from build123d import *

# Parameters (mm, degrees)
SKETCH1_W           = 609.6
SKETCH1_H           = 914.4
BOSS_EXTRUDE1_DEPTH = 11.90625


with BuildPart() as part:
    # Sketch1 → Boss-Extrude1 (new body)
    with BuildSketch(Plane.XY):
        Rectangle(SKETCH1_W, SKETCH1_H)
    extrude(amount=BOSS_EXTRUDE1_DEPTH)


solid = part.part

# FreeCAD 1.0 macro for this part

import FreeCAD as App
import Part
import Sketcher
from FreeCAD import Vector
Q = App.Units.Quantity


def add_polygon(sketch, points):
    """Adds a closed chain of lines whose ends are joined by coincident constraints."""
    first, n = sketch.GeometryCount, len(points)
    for a, b in zip(points, points[1:] + points[:1]):
        sketch.addGeometry(Part.LineSegment(App.Vector(*a, 0), App.Vector(*b, 0)), False)
    for i in range(n):
        sketch.addConstraint(Sketcher.Constraint("Coincident", first + i, 2, first + (i + 1) % n, 1))

doc = App.newDocument("Part")
body = doc.addObject("PartDesign::Body", "Body")

sketch1 = body.newObject("Sketcher::SketchObject", "Sketch")
sketch1.AttachmentSupport = (doc.getObject("XY_Plane"), [""])
sketch1.MapMode = "FlatFace"
add_polygon(sketch1, [(-304.8, 457.2), (-304.8, -457.2), (304.8, -457.2), (304.8, 457.2)])
sketch1.addConstraint(Sketcher.Constraint("Vertical", 0))
sketch1.addConstraint(Sketcher.Constraint("Horizontal", 1))
sketch1.addConstraint(Sketcher.Constraint("Vertical", 2))
sketch1.addConstraint(Sketcher.Constraint("Horizontal", 3))
sketch1.addConstraint(Sketcher.Constraint("Symmetric", 0, 2, 2, 2, -1, 1))
sketch1.addConstraint(Sketcher.Constraint("DistanceX", 1, 1, 1, 2, Q("24 in")))
sketch1.addConstraint(Sketcher.Constraint("DistanceY", 0, 2, 0, 1, Q("36 in")))
pad1 = body.newObject("PartDesign::Pad", "Pad")
pad1.Profile = sketch1
pad1.Length = Q("0.46875 in")

doc.recompute()
